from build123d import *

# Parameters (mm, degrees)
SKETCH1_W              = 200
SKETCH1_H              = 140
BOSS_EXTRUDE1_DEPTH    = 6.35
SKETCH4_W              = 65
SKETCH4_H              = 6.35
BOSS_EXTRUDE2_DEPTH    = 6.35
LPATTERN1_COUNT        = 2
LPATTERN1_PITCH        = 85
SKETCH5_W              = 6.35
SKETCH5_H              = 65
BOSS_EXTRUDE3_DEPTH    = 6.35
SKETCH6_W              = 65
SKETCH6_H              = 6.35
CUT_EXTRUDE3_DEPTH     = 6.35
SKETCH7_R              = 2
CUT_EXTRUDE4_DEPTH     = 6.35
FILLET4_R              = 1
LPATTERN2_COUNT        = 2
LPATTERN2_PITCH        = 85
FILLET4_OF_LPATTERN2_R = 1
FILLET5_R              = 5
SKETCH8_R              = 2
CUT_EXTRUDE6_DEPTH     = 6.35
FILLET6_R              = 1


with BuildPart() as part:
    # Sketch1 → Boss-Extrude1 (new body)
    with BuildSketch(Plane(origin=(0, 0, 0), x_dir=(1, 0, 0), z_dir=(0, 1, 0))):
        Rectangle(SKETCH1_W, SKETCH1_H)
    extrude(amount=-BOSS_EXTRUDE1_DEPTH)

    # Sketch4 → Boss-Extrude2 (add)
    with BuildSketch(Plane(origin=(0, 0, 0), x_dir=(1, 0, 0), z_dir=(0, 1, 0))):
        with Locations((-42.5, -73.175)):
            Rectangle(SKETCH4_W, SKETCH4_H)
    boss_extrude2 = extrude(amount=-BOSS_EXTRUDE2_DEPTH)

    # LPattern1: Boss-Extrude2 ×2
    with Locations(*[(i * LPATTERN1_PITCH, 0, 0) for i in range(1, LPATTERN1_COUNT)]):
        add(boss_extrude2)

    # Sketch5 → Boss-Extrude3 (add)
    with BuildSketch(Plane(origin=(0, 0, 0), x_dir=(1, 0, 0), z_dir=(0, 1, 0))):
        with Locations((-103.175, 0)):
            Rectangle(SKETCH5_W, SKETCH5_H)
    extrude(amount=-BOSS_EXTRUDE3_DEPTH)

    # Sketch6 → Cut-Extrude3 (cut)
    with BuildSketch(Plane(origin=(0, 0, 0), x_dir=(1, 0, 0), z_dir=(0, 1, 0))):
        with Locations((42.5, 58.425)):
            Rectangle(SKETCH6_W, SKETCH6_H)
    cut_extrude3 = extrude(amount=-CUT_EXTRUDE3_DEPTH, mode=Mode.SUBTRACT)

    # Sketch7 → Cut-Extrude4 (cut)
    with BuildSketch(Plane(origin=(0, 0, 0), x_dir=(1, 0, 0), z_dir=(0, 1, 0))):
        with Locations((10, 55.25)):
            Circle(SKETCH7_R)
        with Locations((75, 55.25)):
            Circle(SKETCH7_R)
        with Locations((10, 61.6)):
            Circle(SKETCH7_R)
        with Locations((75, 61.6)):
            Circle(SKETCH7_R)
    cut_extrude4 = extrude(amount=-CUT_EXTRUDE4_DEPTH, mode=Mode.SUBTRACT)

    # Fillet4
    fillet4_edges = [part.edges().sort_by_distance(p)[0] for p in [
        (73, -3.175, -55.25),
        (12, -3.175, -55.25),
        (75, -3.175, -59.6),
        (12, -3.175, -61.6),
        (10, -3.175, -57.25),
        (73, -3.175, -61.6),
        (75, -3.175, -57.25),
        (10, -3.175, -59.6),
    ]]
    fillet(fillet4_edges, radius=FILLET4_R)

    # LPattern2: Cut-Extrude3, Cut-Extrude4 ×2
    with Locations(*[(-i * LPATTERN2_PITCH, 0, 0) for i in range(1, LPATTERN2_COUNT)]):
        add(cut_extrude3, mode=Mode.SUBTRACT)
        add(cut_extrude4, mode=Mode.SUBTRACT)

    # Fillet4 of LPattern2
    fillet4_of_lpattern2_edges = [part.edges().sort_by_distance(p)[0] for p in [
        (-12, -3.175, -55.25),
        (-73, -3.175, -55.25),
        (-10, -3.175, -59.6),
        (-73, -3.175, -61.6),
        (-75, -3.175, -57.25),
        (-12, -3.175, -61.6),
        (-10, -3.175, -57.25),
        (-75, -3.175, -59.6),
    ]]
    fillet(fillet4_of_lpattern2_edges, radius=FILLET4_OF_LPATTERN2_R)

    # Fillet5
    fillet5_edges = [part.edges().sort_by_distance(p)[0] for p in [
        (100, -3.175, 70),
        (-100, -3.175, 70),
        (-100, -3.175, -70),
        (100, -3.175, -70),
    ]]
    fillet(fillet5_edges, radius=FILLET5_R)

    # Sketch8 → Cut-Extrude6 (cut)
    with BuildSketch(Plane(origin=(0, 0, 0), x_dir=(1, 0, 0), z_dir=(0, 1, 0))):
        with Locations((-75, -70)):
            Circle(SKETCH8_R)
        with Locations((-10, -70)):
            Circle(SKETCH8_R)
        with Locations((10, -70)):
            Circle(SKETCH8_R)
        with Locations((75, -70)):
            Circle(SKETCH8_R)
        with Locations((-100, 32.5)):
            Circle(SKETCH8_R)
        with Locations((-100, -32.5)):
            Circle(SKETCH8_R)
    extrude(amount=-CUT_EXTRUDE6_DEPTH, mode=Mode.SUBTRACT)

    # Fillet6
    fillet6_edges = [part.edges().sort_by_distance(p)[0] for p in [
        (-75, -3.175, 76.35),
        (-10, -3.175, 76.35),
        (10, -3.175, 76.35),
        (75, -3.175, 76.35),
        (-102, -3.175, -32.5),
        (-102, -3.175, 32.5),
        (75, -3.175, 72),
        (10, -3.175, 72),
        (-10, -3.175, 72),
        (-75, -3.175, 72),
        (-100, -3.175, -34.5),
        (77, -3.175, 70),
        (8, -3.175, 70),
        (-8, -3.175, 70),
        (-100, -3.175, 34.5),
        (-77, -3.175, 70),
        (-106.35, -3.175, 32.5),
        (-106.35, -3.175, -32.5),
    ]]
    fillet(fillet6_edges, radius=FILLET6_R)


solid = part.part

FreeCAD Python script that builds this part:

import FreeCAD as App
import Part
import Sketcher


def edges_at(feature, points):
    """Names of the edges that pass closest to the given points."""
    edges = feature.Shape.Edges
    near = lambda p: min(range(len(edges)), key=lambda i: edges[i].distToShape(Part.Vertex(*p))[0])
    return sorted({f"Edge{near(p) + 1}" for p in points})

doc = App.newDocument("Part")
params = doc.addObject("Spreadsheet::Sheet", "Params")
for row, (alias, value) in enumerate([
    ("sketch1_width", "200 mm"),
    ("sketch1_height", "140 mm"),
    ("pad1_length", "6.35 mm"),
    ("sketch2_width", "65 mm"),
    ("sketch2_height", "6.35 mm"),
    ("pad2_length", "6.35 mm"),
    ("linearpattern_pitch", "85 mm"),
    ("sketch3_height", "65 mm"),
    ("sketch3_width", "6.35 mm"),
    ("pad3_length", "6.35 mm"),
    ("sketch4_width", "65 mm"),
    ("sketch4_height", "6.35 mm"),
    ("pocket1_length", "6.35 mm"),
    ("sketch5_diameter", "4 mm"),
    ("pocket2_length", "6.35 mm"),
    ("fillet_radius", "1 mm"),
    ("linearpattern2_pitch", "85 mm"),
    ("fillet2_radius", "1 mm"),
    ("fillet3_radius", "5 mm"),
    ("sketch6_diameter", "4 mm"),
    ("pocket3_length", "6.35 mm"),
    ("fillet4_radius", "1 mm"),
], start=1):
    params.set(f"A{row}", alias)
    params.set(f"B{row}", "=" + value)
    params.setAlias(f"B{row}", alias)

body = doc.addObject("PartDesign::Body", "Body")

sketch1 = body.newObject("Sketcher::SketchObject", "Sketch")
sketch1.AttachmentSupport = (doc.getObject("XZ_Plane"), [""])
sketch1.MapMode = "FlatFace"
sketch1.addGeometry([
    Part.LineSegment(App.Vector(-100, -70, 0), App.Vector(-100, 70, 0)),
    Part.LineSegment(App.Vector(-100, 70, 0), App.Vector(100, 70, 0)),
    Part.LineSegment(App.Vector(100, 70, 0), App.Vector(100, -70, 0)),
    Part.LineSegment(App.Vector(100, -70, 0), App.Vector(-100, -70, 0)),
], False)
sketch1.addConstraint([
    Sketcher.Constraint("Coincident", 0, 2, 1, 1),
    Sketcher.Constraint("Coincident", 1, 2, 2, 1),
    Sketcher.Constraint("Coincident", 2, 2, 3, 1),
    Sketcher.Constraint("Coincident", 3, 2, 0, 1),
    Sketcher.Constraint("Vertical", 0),
    Sketcher.Constraint("Horizontal", 1),
    Sketcher.Constraint("Vertical", 2),
    Sketcher.Constraint("Horizontal", 3),
    Sketcher.Constraint("Symmetric", 0, 2, 2, 2, -1, 1),
    Sketcher.Constraint("DistanceX", 1, 1, 1, 2, 200.0),
    Sketcher.Constraint("DistanceY", 0, 1, 0, 2, 140.0),
])
sketch1.setExpression("Constraints[9]", "Params.sketch1_width")
sketch1.setExpression("Constraints[10]", "Params.sketch1_height")
pad1 = body.newObject("PartDesign::Pad", "Pad")
pad1.Profile = sketch1
pad1.setExpression("Length", "Params.pad1_length")

sketch2 = body.newObject("Sketcher::SketchObject", "Sketch001")
sketch2.AttachmentSupport = (doc.getObject("XZ_Plane"), [""])
sketch2.MapMode = "FlatFace"
sketch2.addGeometry([
    Part.LineSegment(App.Vector(-75, 70, 0), App.Vector(-75, 76, 0)),
    Part.LineSegment(App.Vector(-75, 76, 0), App.Vector(-10, 76, 0)),
    Part.LineSegment(App.Vector(-10, 76, 0), App.Vector(-10, 70, 0)),
    Part.LineSegment(App.Vector(-10, 70, 0), App.Vector(-75, 70, 0)),
], False)
sketch2.addConstraint([
    Sketcher.Constraint("Coincident", 0, 2, 1, 1),
    Sketcher.Constraint("Coincident", 1, 2, 2, 1),
    Sketcher.Constraint("Coincident", 2, 2, 3, 1),
    Sketcher.Constraint("Coincident", 3, 2, 0, 1),
    Sketcher.Constraint("Vertical", 0),
    Sketcher.Constraint("Horizontal", 1),
    Sketcher.Constraint("Vertical", 2),
    Sketcher.Constraint("Horizontal", 3),
    Sketcher.Constraint("DistanceX", 1, 1, 1, 2, 65.0),
    Sketcher.Constraint("DistanceX", 0, 2, -1, 1, 75.0),
    Sketcher.Constraint("DistanceY", -1, 1, 2, 2, 70.0),
    Sketcher.Constraint("DistanceY", 0, 1, 0, 2, 6.35),
])
sketch2.setExpression("Constraints[8]", "Params.sketch2_width")
sketch2.setExpression("Constraints[11]", "Params.sketch2_height")
pad2 = body.newObject("PartDesign::Pad", "Pad001")
pad2.Profile = sketch2
pad2.setExpression("Length", "Params.pad2_length")
doc.recompute()

linearpattern = body.newObject("PartDesign::LinearPattern", "LinearPattern")
linearpattern.Originals = [pad2]
linearpattern.Direction = (doc.getObject("X_Axis"), [""])
linearpattern.Mode = "offset"
linearpattern.setExpression("Offset", "Params.linearpattern_pitch")
linearpattern.Occurrences = 2
body.Tip = linearpattern

sketch3 = body.newObject("Sketcher::SketchObject", "Sketch002")
sketch3.AttachmentSupport = (doc.getObject("XZ_Plane"), [""])
sketch3.MapMode = "FlatFace"
sketch3.addGeometry([
    Part.LineSegment(App.Vector(-106, -32, 0), App.Vector(-106, 32, 0)),
    Part.LineSegment(App.Vector(-106, 32, 0), App.Vector(-100, 32, 0)),
    Part.LineSegment(App.Vector(-100, 32, 0), App.Vector(-100, -32, 0)),
    Part.LineSegment(App.Vector(-100, -32, 0), App.Vector(-106, -32, 0)),
], False)
sketch3.addConstraint([
    Sketcher.Constraint("Coincident", 0, 2, 1, 1),
    Sketcher.Constraint("Coincident", 1, 2, 2, 1),
    Sketcher.Constraint("Coincident", 2, 2, 3, 1),
    Sketcher.Constraint("Coincident", 3, 2, 0, 1),
    Sketcher.Constraint("Vertical", 0),
    Sketcher.Constraint("Horizontal", 1),
    Sketcher.Constraint("Vertical", 2),
    Sketcher.Constraint("Horizontal", 3),
    Sketcher.Constraint("DistanceY", 0, 1, 0, 2, 65.0),
    Sketcher.Constraint("DistanceX", 1, 2, -1, 1, 100.0),
    Sketcher.Constraint("DistanceX", 1, 1, 1, 2, 6.35),
    Sketcher.Constraint("DistanceY", -1, 1, 0, 2, 32.5),
])
sketch3.setExpression("Constraints[8]", "Params.sketch3_height")
sketch3.setExpression("Constraints[10]", "Params.sketch3_width")
pad3 = body.newObject("PartDesign::Pad", "Pad002")
pad3.Profile = sketch3
pad3.setExpression("Length", "Params.pad3_length")

sketch4 = body.newObject("Sketcher::SketchObject", "Sketch003")
sketch4.AttachmentSupport = (doc.getObject("XZ_Plane"), [""])
sketch4.MapMode = "FlatFace"
sketch4.addGeometry([
    Part.LineSegment(App.Vector(10, -62, 0), App.Vector(10, -55, 0)),
    Part.LineSegment(App.Vector(10, -55, 0), App.Vector(75, -55, 0)),
    Part.LineSegment(App.Vector(75, -55, 0), App.Vector(75, -62, 0)),
    Part.LineSegment(App.Vector(75, -62, 0), App.Vector(10, -62, 0)),
], False)
sketch4.addConstraint([
    Sketcher.Constraint("Coincident", 0, 2, 1, 1),
    Sketcher.Constraint("Coincident", 1, 2, 2, 1),
    Sketcher.Constraint("Coincident", 2, 2, 3, 1),
    Sketcher.Constraint("Coincident", 3, 2, 0, 1),
    Sketcher.Constraint("Vertical", 0),
    Sketcher.Constraint("Horizontal", 1),
    Sketcher.Constraint("Vertical", 2),
    Sketcher.Constraint("Horizontal", 3),
    Sketcher.Constraint("DistanceX", 1, 1, 1, 2, 65.0),
    Sketcher.Constraint("DistanceX", -1, 1, 0, 2, 10.0),
    Sketcher.Constraint("DistanceY", 0, 1, 0, 2, 6.35),
    Sketcher.Constraint("DistanceY", 2, 2, -1, 1, 61.6),
])
sketch4.setExpression("Constraints[8]", "Params.sketch4_width")
sketch4.setExpression("Constraints[10]", "Params.sketch4_height")
pocket1 = body.newObject("PartDesign::Pocket", "Pocket")
pocket1.Profile = sketch4
pocket1.setExpression("Length", "Params.pocket1_length")
pocket1.Reversed = True

sketch5 = body.newObject("Sketcher::SketchObject", "Sketch004")
sketch5.AttachmentSupport = (doc.getObject("XZ_Plane"), [""])
sketch5.MapMode = "FlatFace"
sketch5.addGeometry([
    Part.Circle(App.Vector(10, -55.2, 0), App.Vector(0, 0, 1), 2),
    Part.Circle(App.Vector(75, -55.2, 0), App.Vector(0, 0, 1), 2),
    Part.Circle(App.Vector(10, -61.6, 0), App.Vector(0, 0, 1), 2),
    Part.Circle(App.Vector(75, -61.6, 0), App.Vector(0, 0, 1), 2),
], False)
sketch5.addConstraint([
    Sketcher.Constraint("Equal", 0, 1),
    Sketcher.Constraint("Equal", 1, 2),
    Sketcher.Constraint("Equal", 2, 3),
    Sketcher.Constraint("Horizontal", 0, 3, 1, 3),
    Sketcher.Constraint("Horizontal", 2, 3, 3, 3),
    Sketcher.Constraint("Vertical", 0, 3, 2, 3),
    Sketcher.Constraint("Vertical", 1, 3, 3, 3),
    Sketcher.Constraint("Diameter", 0, 4.0),
    Sketcher.Constraint("DistanceX", -1, 1, 0, 3, 10.0),
    Sketcher.Constraint("DistanceX", -1, 1, 1, 3, 75.0),
    Sketcher.Constraint("DistanceY", 2, 3, -1, 1, 61.6),
    Sketcher.Constraint("DistanceY", 0, 3, -1, 1, 55.25),
])
sketch5.setExpression("Constraints[7]", "Params.sketch5_diameter")
pocket2 = body.newObject("PartDesign::Pocket", "Pocket001")
pocket2.Profile = sketch5
pocket2.setExpression("Length", "Params.pocket2_length")
pocket2.Reversed = True
doc.recompute()

fillet = body.newObject("PartDesign::Fillet", "Fillet")
fillet.Base = (pocket2, edges_at(pocket2, [
    (73, -3.175, -55.25),
    (12, -3.175, -55.25),
    (75, -3.175, -59.6),
    (12, -3.175, -61.6),
    (10, -3.175, -57.25),
    (73, -3.175, -61.6),
    (75, -3.175, -57.25),
    (10, -3.175, -59.6),
]))
fillet.setExpression("Radius", "Params.fillet_radius")
doc.recompute()

linearpattern2 = body.newObject("PartDesign::LinearPattern", "LinearPattern001")
linearpattern2.Originals = [pocket1, pocket2]
linearpattern2.Direction = (doc.getObject("X_Axis"), [""])
linearpattern2.Mode = "offset"
linearpattern2.setExpression("Offset", "Params.linearpattern2_pitch")
linearpattern2.Occurrences = 2
linearpattern2.Reversed = True
body.Tip = linearpattern2
doc.recompute()

fillet2 = body.newObject("PartDesign::Fillet", "Fillet001")
fillet2.Base = (linearpattern2, edges_at(linearpattern2, [
    (-12, -3.175, -55.25),
    (-73, -3.175, -55.25),
    (-10, -3.175, -59.6),
    (-73, -3.175, -61.6),
    (-75, -3.175, -57.25),
    (-12, -3.175, -61.6),
    (-10, -3.175, -57.25),
    (-75, -3.175, -59.6),
]))
fillet2.setExpression("Radius", "Params.fillet2_radius")
doc.recompute()

fillet3 = body.newObject("PartDesign::Fillet", "Fillet002")
fillet3.Base = (fillet2, edges_at(fillet2, [
    (100, -3.175, 70),
    (-100, -3.175, 70),
    (-100, -3.175, -70),
    (100, -3.175, -70),
]))
fillet3.setExpression("Radius", "Params.fillet3_radius")

sketch6 = body.newObject("Sketcher::SketchObject", "Sketch005")
sketch6.AttachmentSupport = (doc.getObject("XZ_Plane"), [""])
sketch6.MapMode = "FlatFace"
sketch6.addGeometry([
    Part.Circle(App.Vector(-75, 70, 0), App.Vector(0, 0, 1), 2),
    Part.Circle(App.Vector(-10, 70, 0), App.Vector(0, 0, 1), 2),
    Part.Circle(App.Vector(10, 70, 0), App.Vector(0, 0, 1), 2),
    Part.Circle(App.Vector(75, 70, 0), App.Vector(0, 0, 1), 2),
    Part.Circle(App.Vector(-100, -32.5, 0), App.Vector(0, 0, 1), 2),
    Part.Circle(App.Vector(-100, 32.5, 0), App.Vector(0, 0, 1), 2),
], False)
sketch6.addConstraint([
    Sketcher.Constraint("Equal", 0, 1),
    Sketcher.Constraint("Equal", 1, 2),
    Sketcher.Constraint("Equal", 2, 3),
    Sketcher.Constraint("Equal", 3, 4),
    Sketcher.Constraint("Equal", 4, 5),
    Sketcher.Constraint("Symmetric", 1, 3, 2, 3, -2),
    Sketcher.Constraint("Symmetric", 0, 3, 3, 3, -2),
    Sketcher.Constraint("Symmetric", 4, 3, 5, 3, -1),
    Sketcher.Constraint("Horizontal", 0, 3, 1, 3),
    Sketcher.Constraint("Diameter", 0, 4.0),
    Sketcher.Constraint("DistanceX", 0, 3, -1, 1, 75.0),
    Sketcher.Constraint("DistanceY", -1, 1, 0, 3, 70.0),
    Sketcher.Constraint("DistanceX", 1, 3, -1, 1, 10.0),
    Sketcher.Constraint("DistanceX", 4, 3, -1, 1, 100.0),
    Sketcher.Constraint("DistanceY", 4, 3, 5, 3, 65.0),
])
sketch6.setExpression("Constraints[9]", "Params.sketch6_diameter")
pocket3 = body.newObject("PartDesign::Pocket", "Pocket002")
pocket3.Profile = sketch6
pocket3.setExpression("Length", "Params.pocket3_length")
pocket3.Reversed = True
doc.recompute()

fillet4 = body.newObject("PartDesign::Fillet", "Fillet003")
fillet4.Base = (pocket3, edges_at(pocket3, [
    (-75, -3.175, 76.35),
    (-10, -3.175, 76.35),
    (10, -3.175, 76.35),
    (75, -3.175, 76.35),
    (-102, -3.175, -32.5),
    (-102, -3.175, 32.5),
    (75, -3.175, 72),
    (10, -3.175, 72),
    (-10, -3.175, 72),
    (-75, -3.175, 72),
    (-100, -3.175, -34.5),
    (77, -3.175, 70),
    (8, -3.175, 70),
    (-8, -3.175, 70),
    (-100, -3.175, 34.5),
    (-77, -3.175, 70),
    (-106.35, -3.175, 32.5),
    (-106.35, -3.175, -32.5),
]))
fillet4.setExpression("Radius", "Params.fillet4_radius")

doc.recompute()
